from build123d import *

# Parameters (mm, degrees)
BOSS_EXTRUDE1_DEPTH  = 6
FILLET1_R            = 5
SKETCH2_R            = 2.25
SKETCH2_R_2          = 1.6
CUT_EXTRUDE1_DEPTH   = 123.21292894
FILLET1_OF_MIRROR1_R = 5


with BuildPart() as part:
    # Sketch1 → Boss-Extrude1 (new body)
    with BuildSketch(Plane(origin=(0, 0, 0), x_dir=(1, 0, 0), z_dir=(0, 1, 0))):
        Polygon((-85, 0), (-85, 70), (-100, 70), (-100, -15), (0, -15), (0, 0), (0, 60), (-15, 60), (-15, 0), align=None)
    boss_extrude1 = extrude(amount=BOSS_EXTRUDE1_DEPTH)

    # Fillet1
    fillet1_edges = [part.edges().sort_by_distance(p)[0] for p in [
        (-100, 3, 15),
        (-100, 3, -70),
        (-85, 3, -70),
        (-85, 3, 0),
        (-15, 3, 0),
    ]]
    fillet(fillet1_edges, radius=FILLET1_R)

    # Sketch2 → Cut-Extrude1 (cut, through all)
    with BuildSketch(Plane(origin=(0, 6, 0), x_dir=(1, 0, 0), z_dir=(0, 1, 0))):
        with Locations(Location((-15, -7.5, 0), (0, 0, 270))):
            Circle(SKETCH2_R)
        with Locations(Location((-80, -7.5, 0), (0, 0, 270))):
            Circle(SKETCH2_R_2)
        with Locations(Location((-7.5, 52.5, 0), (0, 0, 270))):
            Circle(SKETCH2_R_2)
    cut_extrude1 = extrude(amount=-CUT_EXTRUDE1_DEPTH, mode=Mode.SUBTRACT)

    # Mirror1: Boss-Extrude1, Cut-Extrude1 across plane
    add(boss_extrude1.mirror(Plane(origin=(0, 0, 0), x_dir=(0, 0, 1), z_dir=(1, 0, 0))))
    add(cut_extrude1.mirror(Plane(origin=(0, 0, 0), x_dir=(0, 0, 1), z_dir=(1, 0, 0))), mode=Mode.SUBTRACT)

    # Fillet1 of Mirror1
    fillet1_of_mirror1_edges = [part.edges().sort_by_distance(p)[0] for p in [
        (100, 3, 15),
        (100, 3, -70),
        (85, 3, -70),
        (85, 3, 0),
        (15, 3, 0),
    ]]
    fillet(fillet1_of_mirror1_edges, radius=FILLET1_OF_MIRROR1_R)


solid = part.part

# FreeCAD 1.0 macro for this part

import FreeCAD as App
import Part
import Sketcher
from FreeCAD import Vector


def edges_at(feature, points):
    """Names of the edges that pass closest to the given points."""
    edges = feature.Shape.Edges
    near = lambda p: min(range(len(edges)), key=lambda i: edges[i].distToShape(Part.Vertex(*p))[0])
    return sorted({f"Edge{near(p) + 1}" for p in points})


def add_polygon(sketch, points):
    """Adds a closed chain of lines whose ends are joined by coincident constraints."""
    first, n = sketch.GeometryCount, len(points)
    for a, b in zip(points, points[1:] + points[:1]):
        sketch.addGeometry(Part.LineSegment(App.Vector(*a, 0), App.Vector(*b, 0)), False)
    for i in range(n):
        sketch.addConstraint(Sketcher.Constraint("Coincident", first + i, 2, first + (i + 1) % n, 1))

doc = App.newDocument("Part")
params = doc.addObject("Spreadsheet::Sheet", "Params")
for row, (alias, value) in enumerate([
    ("sketch1_width", "15 mm"),
    ("sketch1_width2", "100 mm"),
    ("sketch1_height", "85 mm"),
    ("sketch1_height2", "75 mm"),
    ("pad1_length", "6 mm"),
    ("fillet_radius", "5 mm"),
    ("sketch2_diameter", "4.5 mm"),
    ("sketch2_diameter2", "3.2 mm"),
    ("fillet2_radius", "5 mm"),
], start=1):
    params.set(f"A{row}", alias)
    params.set(f"B{row}", "=" + value)
    params.setAlias(f"B{row}", alias)

body = doc.addObject("PartDesign::Body", "Body")

# Sketch on XZ plane
sketch1 = doc.addObject("Sketcher::SketchObject", "Sketch")
body.addObject(sketch1)
sketch1.AttachmentSupport = (doc.XZ_Plane, [""])
sketch1.MapMode = "FlatFace"
add_polygon(sketch1, [(-85, 0), (-85, -70), (-100, -70), (-100, 15), (0, 15), (0, -60), (-15, -60), (-15, 0)])  # lines 0-7
sketch1.addConstraint([
    Sketcher.Constraint("Vertical", 0),
    Sketcher.Constraint("Horizontal", 1),
    Sketcher.Constraint("Vertical", 2),
    Sketcher.Constraint("Horizontal", 3),
    Sketcher.Constraint("Vertical", 4),
    Sketcher.Constraint("Horizontal", 5),
    Sketcher.Constraint("Vertical", 6),
    Sketcher.Constraint("Horizontal", 7),
    Sketcher.Constraint("PointOnObject", 3, 2, -2),
    Sketcher.Constraint("PointOnObject", 6, 2, -1),
    Sketcher.Constraint("Equal", 1, 5),
    Sketcher.Constraint("Equal", 7, 0),
    Sketcher.Constraint("DistanceX", 1, 2, 1, 1, 15.0),
    Sketcher.Constraint("DistanceX", 3, 1, 3, 2, 100.0),
    Sketcher.Constraint("DistanceY", 2, 1, 2, 2, 85.0),
    Sketcher.Constraint("DistanceY", 4, 2, 4, 1, 75.0),
])
sketch1.setExpression("Constraints[20]", "Params.sketch1_width")
sketch1.setExpression("Constraints[21]", "Params.sketch1_width2")
sketch1.setExpression("Constraints[22]", "Params.sketch1_height")
sketch1.setExpression("Constraints[23]", "Params.sketch1_height2")
pad1 = doc.addObject("PartDesign::Pad", "Pad")
body.addObject(pad1)
pad1.Profile = sketch1
pad1.setExpression("Length", "Params.pad1_length")
pad1.Reversed = True
doc.recompute()

fillet = doc.addObject("PartDesign::Fillet", "Fillet")
body.addObject(fillet)
fillet.Base = (pad1, edges_at(pad1, [
    (-100, 3, 15),
    (-100, 3, -70),
    (-85, 3, -70),
    (-85, 3, 0),
    (-15, 3, 0),
]))
fillet.setExpression("Radius", "Params.fillet_radius")

# Sketch on XZ plane
sketch2 = doc.addObject("Sketcher::SketchObject", "Sketch001")
body.addObject(sketch2)
sketch2.AttachmentSupport = (doc.XZ_Plane, [""])
sketch2.MapMode = "FlatFace"
sketch2.AttachmentOffset = App.Placement(Vector(0, 0, -6), App.Rotation())
sketch2.addGeometry([
    Part.Circle(Vector(-15, 7.5, 0), Vector(0, 0, 1), 2.2),
    Part.Circle(Vector(-80, 7.5, 0), Vector(0, 0, 1), 1.6),
    Part.Circle(Vector(-7.5, -52.5, 0), Vector(0, 0, 1), 1.6),
], False)
sketch2.addConstraint([
    Sketcher.Constraint("Equal", 1, 2),
    Sketcher.Constraint("Horizontal", 0, 3, 1, 3),
    Sketcher.Constraint("Diameter", 0, 4.5),
    Sketcher.Constraint("Diameter", 1, 3.2),
    Sketcher.Constraint("DistanceX", 0, 3, -1, 1, 15.0),
    Sketcher.Constraint("DistanceX", 1, 3, -1, 1, 80.0),
    Sketcher.Constraint("DistanceY", 2, 3, 0, 3, 60.0),
    Sketcher.Constraint("DistanceY", -1, 1, 0, 3, 7.5),
    Sketcher.Constraint("DistanceX", 2, 3, -1, 1, 7.5),
])
sketch2.setExpression("Constraints[2]", "Params.sketch2_diameter")
sketch2.setExpression("Constraints[3]", "Params.sketch2_diameter2")
pocket1 = doc.addObject("PartDesign::Pocket", "Pocket")
body.addObject(pocket1)
pocket1.Profile = sketch2
pocket1.Type = "ThroughAll"
pocket1.Reversed = True
doc.recompute()

mirrored = doc.addObject("PartDesign::Mirrored", "Mirrored")
body.addObject(mirrored)
mirrored.Originals = [pad1, pocket1]
mirrored.MirrorPlane = (doc.YZ_Plane, [""])
body.Tip = mirrored
doc.recompute()

fillet2 = doc.addObject("PartDesign::Fillet", "Fillet001")
body.addObject(fillet2)
fillet2.Base = (mirrored, edges_at(mirrored, [
    (100, 3, 15),
    (100, 3, -70),
    (85, 3, -70),
    (85, 3, 0),
    (15, 3, 0),
]))
fillet2.setExpression("Radius", "Params.fillet2_radius")

doc.recompute()
